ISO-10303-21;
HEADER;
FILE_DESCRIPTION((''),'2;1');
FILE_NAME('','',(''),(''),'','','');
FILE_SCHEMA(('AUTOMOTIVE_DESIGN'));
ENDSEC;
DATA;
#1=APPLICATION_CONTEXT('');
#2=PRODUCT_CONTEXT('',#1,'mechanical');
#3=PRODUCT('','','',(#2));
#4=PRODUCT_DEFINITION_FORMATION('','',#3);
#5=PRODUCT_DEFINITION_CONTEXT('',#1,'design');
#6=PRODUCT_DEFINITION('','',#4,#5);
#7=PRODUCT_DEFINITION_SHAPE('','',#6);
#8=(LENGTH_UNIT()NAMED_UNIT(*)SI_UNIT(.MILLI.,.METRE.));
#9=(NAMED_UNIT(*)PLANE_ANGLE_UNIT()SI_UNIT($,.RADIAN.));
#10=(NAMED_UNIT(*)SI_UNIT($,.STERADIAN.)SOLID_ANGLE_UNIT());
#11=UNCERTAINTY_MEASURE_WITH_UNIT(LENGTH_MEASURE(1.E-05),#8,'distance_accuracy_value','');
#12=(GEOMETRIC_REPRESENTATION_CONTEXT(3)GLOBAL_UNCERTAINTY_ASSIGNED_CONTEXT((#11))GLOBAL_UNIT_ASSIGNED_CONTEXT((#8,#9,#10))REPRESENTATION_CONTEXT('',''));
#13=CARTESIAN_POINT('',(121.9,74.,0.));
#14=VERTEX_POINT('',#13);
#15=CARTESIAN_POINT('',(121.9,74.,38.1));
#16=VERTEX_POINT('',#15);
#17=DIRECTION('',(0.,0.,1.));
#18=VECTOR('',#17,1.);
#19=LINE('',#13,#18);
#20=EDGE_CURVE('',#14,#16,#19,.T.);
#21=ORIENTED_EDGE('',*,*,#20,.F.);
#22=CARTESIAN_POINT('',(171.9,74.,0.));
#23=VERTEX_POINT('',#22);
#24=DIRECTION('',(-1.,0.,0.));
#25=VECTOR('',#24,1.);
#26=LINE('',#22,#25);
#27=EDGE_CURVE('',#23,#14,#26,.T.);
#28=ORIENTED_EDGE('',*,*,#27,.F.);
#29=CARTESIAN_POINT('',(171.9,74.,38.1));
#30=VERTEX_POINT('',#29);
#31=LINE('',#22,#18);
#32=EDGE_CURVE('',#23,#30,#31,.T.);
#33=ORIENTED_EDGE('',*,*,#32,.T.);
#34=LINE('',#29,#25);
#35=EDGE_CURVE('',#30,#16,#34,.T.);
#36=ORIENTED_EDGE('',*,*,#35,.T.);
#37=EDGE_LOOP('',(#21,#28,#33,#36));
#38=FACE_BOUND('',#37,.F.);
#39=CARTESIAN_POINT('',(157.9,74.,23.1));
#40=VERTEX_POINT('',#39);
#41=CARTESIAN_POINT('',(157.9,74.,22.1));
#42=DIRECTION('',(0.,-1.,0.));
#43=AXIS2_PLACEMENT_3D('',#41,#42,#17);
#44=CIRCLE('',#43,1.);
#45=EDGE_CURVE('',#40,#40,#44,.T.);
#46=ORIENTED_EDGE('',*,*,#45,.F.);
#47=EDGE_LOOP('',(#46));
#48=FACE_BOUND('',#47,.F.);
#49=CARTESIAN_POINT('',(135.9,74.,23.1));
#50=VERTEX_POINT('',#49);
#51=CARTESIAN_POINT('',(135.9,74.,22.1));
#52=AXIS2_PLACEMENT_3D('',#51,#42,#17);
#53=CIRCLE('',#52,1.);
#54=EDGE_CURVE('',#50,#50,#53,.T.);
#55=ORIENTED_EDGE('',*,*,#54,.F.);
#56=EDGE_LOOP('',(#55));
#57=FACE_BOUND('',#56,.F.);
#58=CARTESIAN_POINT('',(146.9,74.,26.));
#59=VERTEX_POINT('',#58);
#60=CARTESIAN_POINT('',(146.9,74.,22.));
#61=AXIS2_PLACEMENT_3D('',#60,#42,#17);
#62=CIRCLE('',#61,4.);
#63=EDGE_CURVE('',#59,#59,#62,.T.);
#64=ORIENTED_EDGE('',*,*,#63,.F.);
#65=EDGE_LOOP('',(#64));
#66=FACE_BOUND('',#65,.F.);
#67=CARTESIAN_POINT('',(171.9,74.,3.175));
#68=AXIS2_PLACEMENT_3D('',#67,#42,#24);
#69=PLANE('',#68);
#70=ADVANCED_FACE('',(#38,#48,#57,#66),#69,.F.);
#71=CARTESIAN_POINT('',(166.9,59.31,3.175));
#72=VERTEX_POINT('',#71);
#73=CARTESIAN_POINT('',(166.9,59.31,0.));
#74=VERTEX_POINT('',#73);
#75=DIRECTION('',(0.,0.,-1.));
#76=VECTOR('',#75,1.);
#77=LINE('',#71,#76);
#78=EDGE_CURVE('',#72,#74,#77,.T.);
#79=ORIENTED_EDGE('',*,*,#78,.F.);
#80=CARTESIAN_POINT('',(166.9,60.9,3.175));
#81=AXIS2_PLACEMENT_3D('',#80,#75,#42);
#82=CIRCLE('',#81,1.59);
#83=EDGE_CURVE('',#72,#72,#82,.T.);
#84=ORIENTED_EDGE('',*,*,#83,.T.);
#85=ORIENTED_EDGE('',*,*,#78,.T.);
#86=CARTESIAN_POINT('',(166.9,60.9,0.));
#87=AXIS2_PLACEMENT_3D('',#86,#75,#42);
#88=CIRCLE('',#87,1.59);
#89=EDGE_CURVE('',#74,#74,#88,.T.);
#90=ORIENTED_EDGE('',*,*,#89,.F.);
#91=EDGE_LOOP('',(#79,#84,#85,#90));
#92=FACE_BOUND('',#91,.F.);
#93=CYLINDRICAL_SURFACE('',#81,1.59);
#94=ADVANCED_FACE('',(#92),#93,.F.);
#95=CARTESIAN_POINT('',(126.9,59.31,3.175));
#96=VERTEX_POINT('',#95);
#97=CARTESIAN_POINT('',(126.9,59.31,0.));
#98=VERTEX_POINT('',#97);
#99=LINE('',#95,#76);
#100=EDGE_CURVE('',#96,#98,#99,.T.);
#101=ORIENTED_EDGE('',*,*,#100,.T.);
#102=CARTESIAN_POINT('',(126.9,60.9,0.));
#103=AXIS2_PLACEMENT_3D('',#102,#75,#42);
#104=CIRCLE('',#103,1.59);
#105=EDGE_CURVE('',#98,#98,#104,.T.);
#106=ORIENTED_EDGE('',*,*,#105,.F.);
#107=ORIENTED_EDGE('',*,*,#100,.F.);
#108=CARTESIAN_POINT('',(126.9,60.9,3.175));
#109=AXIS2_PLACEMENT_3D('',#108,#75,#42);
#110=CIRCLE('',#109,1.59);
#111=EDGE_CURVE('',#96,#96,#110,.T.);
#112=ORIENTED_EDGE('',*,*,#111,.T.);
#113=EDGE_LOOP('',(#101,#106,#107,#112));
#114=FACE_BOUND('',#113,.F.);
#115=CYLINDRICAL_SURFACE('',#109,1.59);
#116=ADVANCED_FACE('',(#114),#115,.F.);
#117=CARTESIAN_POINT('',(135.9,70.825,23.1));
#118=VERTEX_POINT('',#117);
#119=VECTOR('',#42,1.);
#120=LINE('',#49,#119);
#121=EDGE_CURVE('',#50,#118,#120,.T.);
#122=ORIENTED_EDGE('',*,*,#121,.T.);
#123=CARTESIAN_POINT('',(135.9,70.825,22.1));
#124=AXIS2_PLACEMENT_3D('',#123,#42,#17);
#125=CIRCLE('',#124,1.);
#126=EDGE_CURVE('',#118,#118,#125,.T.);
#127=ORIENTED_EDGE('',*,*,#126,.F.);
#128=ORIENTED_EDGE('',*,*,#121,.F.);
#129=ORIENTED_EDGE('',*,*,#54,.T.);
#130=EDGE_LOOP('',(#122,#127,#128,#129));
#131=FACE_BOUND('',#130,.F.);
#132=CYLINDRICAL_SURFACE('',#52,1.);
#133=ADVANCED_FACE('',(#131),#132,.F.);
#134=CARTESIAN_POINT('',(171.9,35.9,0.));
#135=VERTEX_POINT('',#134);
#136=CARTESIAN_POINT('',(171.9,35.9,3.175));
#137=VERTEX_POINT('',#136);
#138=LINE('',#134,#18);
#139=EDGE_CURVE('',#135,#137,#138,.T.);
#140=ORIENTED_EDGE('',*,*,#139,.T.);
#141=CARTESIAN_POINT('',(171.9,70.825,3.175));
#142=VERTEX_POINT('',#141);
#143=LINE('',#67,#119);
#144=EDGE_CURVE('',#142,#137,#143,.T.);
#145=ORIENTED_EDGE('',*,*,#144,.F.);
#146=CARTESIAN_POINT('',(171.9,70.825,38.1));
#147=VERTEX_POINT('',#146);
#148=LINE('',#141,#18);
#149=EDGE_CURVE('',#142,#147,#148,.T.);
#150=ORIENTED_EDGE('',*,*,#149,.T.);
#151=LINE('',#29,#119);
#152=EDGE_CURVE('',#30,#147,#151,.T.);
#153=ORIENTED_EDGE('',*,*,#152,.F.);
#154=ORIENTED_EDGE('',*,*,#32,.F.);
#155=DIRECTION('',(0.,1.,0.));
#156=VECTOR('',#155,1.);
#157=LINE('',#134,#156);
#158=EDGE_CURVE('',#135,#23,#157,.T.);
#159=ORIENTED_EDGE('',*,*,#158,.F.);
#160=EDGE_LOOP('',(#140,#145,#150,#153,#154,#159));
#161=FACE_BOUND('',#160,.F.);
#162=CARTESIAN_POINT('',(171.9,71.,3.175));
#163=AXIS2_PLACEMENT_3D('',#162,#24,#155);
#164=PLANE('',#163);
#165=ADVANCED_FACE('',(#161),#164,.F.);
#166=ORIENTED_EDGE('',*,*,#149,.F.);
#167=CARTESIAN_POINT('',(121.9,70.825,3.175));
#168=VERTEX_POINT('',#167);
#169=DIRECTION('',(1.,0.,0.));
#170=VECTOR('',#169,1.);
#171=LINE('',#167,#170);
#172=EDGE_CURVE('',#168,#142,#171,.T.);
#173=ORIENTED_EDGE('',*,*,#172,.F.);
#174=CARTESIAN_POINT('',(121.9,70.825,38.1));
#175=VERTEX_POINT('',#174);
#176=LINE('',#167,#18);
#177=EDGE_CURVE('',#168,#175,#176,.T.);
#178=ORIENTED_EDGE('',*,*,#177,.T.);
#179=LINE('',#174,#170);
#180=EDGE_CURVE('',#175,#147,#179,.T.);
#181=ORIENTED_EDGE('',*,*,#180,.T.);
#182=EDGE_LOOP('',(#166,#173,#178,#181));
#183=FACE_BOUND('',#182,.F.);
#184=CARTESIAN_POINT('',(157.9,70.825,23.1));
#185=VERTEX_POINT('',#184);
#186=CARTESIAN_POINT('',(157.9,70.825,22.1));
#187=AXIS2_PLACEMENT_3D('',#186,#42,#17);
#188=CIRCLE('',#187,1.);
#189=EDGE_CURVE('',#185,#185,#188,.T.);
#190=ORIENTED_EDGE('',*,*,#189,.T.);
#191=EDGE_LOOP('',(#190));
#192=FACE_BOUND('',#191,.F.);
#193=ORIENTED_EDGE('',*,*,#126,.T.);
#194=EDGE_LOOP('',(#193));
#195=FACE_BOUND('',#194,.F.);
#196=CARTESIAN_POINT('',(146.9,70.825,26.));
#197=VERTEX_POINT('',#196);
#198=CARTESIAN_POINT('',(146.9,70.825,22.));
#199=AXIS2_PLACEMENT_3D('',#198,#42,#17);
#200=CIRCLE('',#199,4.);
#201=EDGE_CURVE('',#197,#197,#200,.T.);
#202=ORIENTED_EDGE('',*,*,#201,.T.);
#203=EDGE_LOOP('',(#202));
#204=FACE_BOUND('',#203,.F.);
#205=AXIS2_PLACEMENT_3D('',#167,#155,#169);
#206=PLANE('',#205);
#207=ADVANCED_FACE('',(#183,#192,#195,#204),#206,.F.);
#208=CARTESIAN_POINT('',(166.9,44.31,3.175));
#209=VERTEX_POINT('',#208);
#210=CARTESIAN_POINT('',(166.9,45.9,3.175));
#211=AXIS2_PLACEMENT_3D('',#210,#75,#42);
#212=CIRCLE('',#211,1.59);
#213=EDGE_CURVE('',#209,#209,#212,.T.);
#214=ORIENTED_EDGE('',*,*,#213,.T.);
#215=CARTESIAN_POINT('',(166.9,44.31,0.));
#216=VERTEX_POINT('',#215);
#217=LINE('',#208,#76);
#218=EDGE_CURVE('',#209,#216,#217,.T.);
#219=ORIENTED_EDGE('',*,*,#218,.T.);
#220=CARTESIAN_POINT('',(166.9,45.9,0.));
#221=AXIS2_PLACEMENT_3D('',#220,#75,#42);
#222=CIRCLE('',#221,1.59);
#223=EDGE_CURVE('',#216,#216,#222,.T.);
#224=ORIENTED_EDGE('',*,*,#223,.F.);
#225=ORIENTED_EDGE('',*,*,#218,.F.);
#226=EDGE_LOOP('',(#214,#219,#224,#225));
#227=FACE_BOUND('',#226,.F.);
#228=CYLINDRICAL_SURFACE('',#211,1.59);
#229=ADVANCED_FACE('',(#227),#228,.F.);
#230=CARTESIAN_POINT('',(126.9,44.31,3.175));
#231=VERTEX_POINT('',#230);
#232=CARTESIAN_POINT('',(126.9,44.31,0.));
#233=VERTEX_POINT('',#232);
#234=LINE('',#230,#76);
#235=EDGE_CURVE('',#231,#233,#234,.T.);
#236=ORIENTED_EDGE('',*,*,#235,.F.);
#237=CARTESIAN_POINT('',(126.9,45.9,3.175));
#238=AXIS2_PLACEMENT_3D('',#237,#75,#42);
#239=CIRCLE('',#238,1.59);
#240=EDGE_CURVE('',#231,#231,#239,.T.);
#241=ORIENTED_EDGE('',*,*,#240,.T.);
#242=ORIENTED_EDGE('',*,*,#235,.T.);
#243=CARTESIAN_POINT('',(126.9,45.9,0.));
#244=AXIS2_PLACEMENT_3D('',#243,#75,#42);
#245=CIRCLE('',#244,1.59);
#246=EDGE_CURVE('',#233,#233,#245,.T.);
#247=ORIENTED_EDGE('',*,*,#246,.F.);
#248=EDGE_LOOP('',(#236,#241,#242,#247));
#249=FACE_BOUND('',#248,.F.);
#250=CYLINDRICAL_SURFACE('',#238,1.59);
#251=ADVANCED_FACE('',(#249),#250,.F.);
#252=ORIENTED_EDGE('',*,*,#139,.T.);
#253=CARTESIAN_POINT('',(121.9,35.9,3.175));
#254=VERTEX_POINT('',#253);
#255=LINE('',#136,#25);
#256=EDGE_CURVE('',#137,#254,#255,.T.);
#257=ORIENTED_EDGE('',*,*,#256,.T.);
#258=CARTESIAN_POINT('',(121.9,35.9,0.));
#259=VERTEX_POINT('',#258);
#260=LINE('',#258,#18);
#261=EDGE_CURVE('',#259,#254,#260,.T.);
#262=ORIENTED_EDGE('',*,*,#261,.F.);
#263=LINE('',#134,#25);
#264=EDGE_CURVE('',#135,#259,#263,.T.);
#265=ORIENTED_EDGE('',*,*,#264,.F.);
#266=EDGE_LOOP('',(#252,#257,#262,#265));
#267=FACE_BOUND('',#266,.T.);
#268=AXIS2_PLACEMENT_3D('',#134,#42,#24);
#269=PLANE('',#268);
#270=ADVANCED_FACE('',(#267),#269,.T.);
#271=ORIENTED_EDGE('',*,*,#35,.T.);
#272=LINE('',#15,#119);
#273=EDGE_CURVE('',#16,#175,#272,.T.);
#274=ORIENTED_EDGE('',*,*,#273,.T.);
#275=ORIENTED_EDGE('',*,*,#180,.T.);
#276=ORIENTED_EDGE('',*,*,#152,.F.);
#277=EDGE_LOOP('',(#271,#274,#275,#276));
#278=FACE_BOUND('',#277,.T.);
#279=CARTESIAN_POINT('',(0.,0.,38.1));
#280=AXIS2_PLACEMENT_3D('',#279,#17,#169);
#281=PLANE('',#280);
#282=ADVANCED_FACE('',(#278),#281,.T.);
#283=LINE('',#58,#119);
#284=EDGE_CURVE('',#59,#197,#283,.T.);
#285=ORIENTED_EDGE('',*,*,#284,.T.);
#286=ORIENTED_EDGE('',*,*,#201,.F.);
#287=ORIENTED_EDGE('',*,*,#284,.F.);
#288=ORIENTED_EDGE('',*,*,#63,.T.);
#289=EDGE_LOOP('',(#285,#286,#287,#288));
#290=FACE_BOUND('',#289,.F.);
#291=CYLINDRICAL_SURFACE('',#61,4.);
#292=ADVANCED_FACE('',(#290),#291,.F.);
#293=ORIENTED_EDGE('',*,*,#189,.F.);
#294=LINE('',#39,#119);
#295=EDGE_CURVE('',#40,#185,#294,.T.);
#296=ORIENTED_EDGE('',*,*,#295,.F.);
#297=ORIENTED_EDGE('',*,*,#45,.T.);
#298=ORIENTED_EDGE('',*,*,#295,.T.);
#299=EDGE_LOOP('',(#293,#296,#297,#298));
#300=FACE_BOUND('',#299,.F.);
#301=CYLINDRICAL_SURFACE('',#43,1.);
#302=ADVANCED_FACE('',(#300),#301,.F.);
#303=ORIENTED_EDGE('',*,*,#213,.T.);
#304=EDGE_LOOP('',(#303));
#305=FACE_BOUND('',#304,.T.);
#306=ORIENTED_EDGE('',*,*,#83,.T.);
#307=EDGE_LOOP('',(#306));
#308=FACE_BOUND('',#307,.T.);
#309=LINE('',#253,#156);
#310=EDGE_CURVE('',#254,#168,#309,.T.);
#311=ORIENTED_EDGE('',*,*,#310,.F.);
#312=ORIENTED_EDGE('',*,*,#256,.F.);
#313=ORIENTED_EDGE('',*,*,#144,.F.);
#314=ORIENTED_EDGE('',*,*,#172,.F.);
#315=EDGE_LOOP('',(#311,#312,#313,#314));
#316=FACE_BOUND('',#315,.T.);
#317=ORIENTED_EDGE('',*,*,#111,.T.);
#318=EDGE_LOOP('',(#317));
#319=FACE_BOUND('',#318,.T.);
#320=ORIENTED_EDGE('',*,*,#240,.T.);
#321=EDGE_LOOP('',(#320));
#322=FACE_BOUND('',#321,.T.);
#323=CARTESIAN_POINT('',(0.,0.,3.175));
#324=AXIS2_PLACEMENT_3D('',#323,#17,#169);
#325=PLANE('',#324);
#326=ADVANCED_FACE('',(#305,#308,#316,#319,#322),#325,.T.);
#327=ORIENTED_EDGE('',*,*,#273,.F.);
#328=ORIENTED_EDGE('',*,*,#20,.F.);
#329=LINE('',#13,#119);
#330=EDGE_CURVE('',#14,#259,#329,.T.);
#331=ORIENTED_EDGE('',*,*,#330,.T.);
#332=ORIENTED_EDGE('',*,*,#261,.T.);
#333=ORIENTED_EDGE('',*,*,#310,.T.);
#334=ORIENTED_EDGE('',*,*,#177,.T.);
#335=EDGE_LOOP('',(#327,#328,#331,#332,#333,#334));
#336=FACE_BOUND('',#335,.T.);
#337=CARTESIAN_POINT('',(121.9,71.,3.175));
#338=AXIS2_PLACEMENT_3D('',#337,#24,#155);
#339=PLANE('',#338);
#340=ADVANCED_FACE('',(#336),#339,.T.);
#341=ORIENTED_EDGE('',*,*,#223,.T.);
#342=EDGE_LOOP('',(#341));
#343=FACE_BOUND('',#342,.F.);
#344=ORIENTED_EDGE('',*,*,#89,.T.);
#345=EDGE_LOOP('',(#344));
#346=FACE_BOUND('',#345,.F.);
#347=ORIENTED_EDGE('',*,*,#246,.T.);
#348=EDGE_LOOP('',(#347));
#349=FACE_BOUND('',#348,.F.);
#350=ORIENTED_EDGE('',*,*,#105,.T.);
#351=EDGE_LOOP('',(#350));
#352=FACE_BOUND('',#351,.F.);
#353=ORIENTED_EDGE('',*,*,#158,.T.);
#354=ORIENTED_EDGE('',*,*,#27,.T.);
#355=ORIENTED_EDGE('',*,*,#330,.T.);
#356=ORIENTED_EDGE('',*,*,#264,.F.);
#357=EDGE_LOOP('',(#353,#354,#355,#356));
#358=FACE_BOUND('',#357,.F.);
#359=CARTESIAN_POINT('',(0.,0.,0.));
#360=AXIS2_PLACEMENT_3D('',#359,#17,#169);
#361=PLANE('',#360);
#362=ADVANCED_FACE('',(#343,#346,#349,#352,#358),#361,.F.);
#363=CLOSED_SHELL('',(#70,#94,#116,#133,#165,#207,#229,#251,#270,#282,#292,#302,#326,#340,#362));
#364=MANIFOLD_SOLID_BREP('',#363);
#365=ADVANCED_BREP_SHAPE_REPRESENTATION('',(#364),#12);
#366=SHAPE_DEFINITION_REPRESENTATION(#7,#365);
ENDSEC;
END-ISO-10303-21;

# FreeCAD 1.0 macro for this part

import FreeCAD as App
import Part
import Sketcher
from FreeCAD import Vector
Q = App.Units.Quantity


def add_polygon(sketch, points):
    """Adds a closed chain of lines whose ends are joined by coincident constraints."""
    first, n = sketch.GeometryCount, len(points)
    for a, b in zip(points, points[1:] + points[:1]):
        sketch.addGeometry(Part.LineSegment(App.Vector(*a, 0), App.Vector(*b, 0)), False)
    for i in range(n):
        sketch.addConstraint(Sketcher.Constraint("Coincident", first + i, 2, first + (i + 1) % n, 1))

doc = App.newDocument("Part")
body = doc.addObject("PartDesign::Body", "Body")

# Sketch on XY plane
sketch1 = body.newObject("Sketcher::SketchObject", "Sketch")
sketch1.AttachmentSupport = (doc.getObject("XY_Plane"), [""])
sketch1.MapMode = "FlatFace"
add_polygon(sketch1, [(171.9, 74), (121.9, 74), (121.9, 35.9), (171.9, 35.9)])  # lines 0-3
sketch1.addConstraint([
    Sketcher.Constraint("Horizontal", 0),
    Sketcher.Constraint("Vertical", 1),
    Sketcher.Constraint("Horizontal", 2),
    Sketcher.Constraint("Vertical", 3),
    Sketcher.Constraint("DistanceY", 1, 2, 1, 1, Q("1.5 in")),
    Sketcher.Constraint("DistanceX", 0, 2, 0, 1, Q("1.9685 in")),
    Sketcher.Constraint("DistanceX", -1, 1, 0, 2, Q("121.9 mm")),
    Sketcher.Constraint("DistanceY", -1, 1, 0, 2, Q("74 mm")),
])
pad1 = body.newObject("PartDesign::Pad", "Pad")
pad1.Profile = sketch1
pad1.Length = Q("0.125 in")

# Sketch on XY plane
sketch2 = body.newObject("Sketcher::SketchObject", "Sketch001")
sketch2.AttachmentSupport = (doc.getObject("XY_Plane"), [""])
sketch2.MapMode = "FlatFace"
sketch2.AttachmentOffset = App.Placement(Vector(0, 0, 0.125 * 25.4), App.Rotation())
add_polygon(sketch2, [(171.9, 70.825), (171.9, 74), (121.9, 74), (121.9, 70.825)])  # lines 0-3
sketch2.addConstraint([
    Sketcher.Constraint("Vertical", 0),
    Sketcher.Constraint("Horizontal", 1),
    Sketcher.Constraint("Vertical", 2),
    Sketcher.Constraint("Horizontal", 3),
    Sketcher.Constraint("DistanceY", 0, 1, 0, 2, Q("0.125 in")),
    Sketcher.Constraint("DistanceX", 1, 2, 1, 1, Q("1.9685 in")),
    Sketcher.Constraint("DistanceX", -1, 1, 0, 2, Q("171.9 mm")),
    Sketcher.Constraint("DistanceY", -1, 1, 0, 2, Q("74 mm")),
])
pad2 = body.newObject("PartDesign::Pad", "Pad001")
pad2.Profile = sketch2
pad2.Length = Q("1.375 in")

# Sketch on XZ plane
sketch3 = body.newObject("Sketcher::SketchObject", "Sketch002")
sketch3.AttachmentSupport = (doc.getObject("XZ_Plane"), [""])
sketch3.MapMode = "FlatFace"
sketch3.AttachmentOffset = App.Placement(Vector(0, 0, -74), App.Rotation())
sketch3.addGeometry(Part.Circle(Vector(146.9, 22, 0), Vector(0, 0, 1), 4), False)
sketch3.addConstraint([
    Sketcher.Constraint("Diameter", 0, Q("8 mm")),
    Sketcher.Constraint("DistanceX", -1, 1, 0, 3, Q("146.9 mm")),
    Sketcher.Constraint("DistanceY", -1, 1, 0, 3, Q("22 mm")),
])
doc.recompute()
hole = body.newObject("PartDesign::Hole", "Hole")
hole.Profile = sketch3
hole.ThreadType = "None"
hole.Diameter = 8
hole.DepthType = "ThroughAll"
hole.Reversed = True

# Sketch on XZ plane
sketch4 = body.newObject("Sketcher::SketchObject", "Sketch003")
sketch4.AttachmentSupport = (doc.getObject("XZ_Plane"), [""])
sketch4.MapMode = "FlatFace"
sketch4.AttachmentOffset = App.Placement(Vector(0, 0, -74), App.Rotation())
sketch4.addGeometry([
    Part.Circle(Vector(135.9, 22.1, 0), Vector(0, 0, 1), 1),
    Part.Circle(Vector(157.9, 22.1, 0), Vector(0, 0, 1), 1),
], False)
sketch4.addConstraint([
    Sketcher.Constraint("Equal", 0, 1),
    Sketcher.Constraint("Horizontal", 0, 3, 1, 3),
    Sketcher.Constraint("Diameter", 0, Q("2 mm")),
    Sketcher.Constraint("DistanceX", -1, 1, 0, 3, Q("5.3504 in")),
    Sketcher.Constraint("DistanceY", -1, 1, 0, 3, Q("22.1 mm")),
    Sketcher.Constraint("DistanceX", -1, 1, 1, 3, Q("157.9 mm")),
])
doc.recompute()
hole2 = body.newObject("PartDesign::Hole", "Hole001")
hole2.Profile = sketch4
hole2.ThreadType = "None"
hole2.Diameter = 2
hole2.DepthType = "ThroughAll"
hole2.Reversed = True

# Sketch on XY plane
sketch5 = body.newObject("Sketcher::SketchObject", "Sketch004")
sketch5.AttachmentSupport = (doc.getObject("XY_Plane"), [""])
sketch5.MapMode = "FlatFace"
sketch5.AttachmentOffset = App.Placement(Vector(0, 0, 0.125 * 25.4), App.Rotation())
sketch5.addGeometry([
    Part.Circle(Vector(166.9, 45.9, 0), Vector(0, 0, 1), 1.59),
    Part.Circle(Vector(166.9, 60.9, 0), Vector(0, 0, 1), 1.59),
    Part.Circle(Vector(126.9, 60.9, 0), Vector(0, 0, 1), 1.59),
    Part.Circle(Vector(126.9, 45.9, 0), Vector(0, 0, 1), 1.59),
], False)
sketch5.addConstraint([
    Sketcher.Constraint("Equal", 0, 1),
    Sketcher.Constraint("Equal", 1, 2),
    Sketcher.Constraint("Equal", 2, 3),
    Sketcher.Constraint("Horizontal", 1, 3, 2, 3),
    Sketcher.Constraint("Horizontal", 0, 3, 3, 3),
    Sketcher.Constraint("Vertical", 0, 3, 1, 3),
    Sketcher.Constraint("Vertical", 2, 3, 3, 3),
    Sketcher.Constraint("Diameter", 0, Q("0.1252 in")),
    Sketcher.Constraint("DistanceX", 2, 3, 1, 3, Q("1.5748 in")),
    Sketcher.Constraint("DistanceX", -1, 1, 0, 3, Q("166.9 mm")),
    Sketcher.Constraint("DistanceY", -1, 1, 0, 3, Q("45.9 mm")),
    Sketcher.Constraint("DistanceY", -1, 1, 1, 3, Q("60.9 mm")),
])
doc.recompute()
hole3 = body.newObject("PartDesign::Hole", "Hole002")
hole3.Profile = sketch5
hole3.ThreadType = "None"
hole3.Diameter = Q("0.1251969 in")
hole3.DepthType = "ThroughAll"

doc.recompute()
